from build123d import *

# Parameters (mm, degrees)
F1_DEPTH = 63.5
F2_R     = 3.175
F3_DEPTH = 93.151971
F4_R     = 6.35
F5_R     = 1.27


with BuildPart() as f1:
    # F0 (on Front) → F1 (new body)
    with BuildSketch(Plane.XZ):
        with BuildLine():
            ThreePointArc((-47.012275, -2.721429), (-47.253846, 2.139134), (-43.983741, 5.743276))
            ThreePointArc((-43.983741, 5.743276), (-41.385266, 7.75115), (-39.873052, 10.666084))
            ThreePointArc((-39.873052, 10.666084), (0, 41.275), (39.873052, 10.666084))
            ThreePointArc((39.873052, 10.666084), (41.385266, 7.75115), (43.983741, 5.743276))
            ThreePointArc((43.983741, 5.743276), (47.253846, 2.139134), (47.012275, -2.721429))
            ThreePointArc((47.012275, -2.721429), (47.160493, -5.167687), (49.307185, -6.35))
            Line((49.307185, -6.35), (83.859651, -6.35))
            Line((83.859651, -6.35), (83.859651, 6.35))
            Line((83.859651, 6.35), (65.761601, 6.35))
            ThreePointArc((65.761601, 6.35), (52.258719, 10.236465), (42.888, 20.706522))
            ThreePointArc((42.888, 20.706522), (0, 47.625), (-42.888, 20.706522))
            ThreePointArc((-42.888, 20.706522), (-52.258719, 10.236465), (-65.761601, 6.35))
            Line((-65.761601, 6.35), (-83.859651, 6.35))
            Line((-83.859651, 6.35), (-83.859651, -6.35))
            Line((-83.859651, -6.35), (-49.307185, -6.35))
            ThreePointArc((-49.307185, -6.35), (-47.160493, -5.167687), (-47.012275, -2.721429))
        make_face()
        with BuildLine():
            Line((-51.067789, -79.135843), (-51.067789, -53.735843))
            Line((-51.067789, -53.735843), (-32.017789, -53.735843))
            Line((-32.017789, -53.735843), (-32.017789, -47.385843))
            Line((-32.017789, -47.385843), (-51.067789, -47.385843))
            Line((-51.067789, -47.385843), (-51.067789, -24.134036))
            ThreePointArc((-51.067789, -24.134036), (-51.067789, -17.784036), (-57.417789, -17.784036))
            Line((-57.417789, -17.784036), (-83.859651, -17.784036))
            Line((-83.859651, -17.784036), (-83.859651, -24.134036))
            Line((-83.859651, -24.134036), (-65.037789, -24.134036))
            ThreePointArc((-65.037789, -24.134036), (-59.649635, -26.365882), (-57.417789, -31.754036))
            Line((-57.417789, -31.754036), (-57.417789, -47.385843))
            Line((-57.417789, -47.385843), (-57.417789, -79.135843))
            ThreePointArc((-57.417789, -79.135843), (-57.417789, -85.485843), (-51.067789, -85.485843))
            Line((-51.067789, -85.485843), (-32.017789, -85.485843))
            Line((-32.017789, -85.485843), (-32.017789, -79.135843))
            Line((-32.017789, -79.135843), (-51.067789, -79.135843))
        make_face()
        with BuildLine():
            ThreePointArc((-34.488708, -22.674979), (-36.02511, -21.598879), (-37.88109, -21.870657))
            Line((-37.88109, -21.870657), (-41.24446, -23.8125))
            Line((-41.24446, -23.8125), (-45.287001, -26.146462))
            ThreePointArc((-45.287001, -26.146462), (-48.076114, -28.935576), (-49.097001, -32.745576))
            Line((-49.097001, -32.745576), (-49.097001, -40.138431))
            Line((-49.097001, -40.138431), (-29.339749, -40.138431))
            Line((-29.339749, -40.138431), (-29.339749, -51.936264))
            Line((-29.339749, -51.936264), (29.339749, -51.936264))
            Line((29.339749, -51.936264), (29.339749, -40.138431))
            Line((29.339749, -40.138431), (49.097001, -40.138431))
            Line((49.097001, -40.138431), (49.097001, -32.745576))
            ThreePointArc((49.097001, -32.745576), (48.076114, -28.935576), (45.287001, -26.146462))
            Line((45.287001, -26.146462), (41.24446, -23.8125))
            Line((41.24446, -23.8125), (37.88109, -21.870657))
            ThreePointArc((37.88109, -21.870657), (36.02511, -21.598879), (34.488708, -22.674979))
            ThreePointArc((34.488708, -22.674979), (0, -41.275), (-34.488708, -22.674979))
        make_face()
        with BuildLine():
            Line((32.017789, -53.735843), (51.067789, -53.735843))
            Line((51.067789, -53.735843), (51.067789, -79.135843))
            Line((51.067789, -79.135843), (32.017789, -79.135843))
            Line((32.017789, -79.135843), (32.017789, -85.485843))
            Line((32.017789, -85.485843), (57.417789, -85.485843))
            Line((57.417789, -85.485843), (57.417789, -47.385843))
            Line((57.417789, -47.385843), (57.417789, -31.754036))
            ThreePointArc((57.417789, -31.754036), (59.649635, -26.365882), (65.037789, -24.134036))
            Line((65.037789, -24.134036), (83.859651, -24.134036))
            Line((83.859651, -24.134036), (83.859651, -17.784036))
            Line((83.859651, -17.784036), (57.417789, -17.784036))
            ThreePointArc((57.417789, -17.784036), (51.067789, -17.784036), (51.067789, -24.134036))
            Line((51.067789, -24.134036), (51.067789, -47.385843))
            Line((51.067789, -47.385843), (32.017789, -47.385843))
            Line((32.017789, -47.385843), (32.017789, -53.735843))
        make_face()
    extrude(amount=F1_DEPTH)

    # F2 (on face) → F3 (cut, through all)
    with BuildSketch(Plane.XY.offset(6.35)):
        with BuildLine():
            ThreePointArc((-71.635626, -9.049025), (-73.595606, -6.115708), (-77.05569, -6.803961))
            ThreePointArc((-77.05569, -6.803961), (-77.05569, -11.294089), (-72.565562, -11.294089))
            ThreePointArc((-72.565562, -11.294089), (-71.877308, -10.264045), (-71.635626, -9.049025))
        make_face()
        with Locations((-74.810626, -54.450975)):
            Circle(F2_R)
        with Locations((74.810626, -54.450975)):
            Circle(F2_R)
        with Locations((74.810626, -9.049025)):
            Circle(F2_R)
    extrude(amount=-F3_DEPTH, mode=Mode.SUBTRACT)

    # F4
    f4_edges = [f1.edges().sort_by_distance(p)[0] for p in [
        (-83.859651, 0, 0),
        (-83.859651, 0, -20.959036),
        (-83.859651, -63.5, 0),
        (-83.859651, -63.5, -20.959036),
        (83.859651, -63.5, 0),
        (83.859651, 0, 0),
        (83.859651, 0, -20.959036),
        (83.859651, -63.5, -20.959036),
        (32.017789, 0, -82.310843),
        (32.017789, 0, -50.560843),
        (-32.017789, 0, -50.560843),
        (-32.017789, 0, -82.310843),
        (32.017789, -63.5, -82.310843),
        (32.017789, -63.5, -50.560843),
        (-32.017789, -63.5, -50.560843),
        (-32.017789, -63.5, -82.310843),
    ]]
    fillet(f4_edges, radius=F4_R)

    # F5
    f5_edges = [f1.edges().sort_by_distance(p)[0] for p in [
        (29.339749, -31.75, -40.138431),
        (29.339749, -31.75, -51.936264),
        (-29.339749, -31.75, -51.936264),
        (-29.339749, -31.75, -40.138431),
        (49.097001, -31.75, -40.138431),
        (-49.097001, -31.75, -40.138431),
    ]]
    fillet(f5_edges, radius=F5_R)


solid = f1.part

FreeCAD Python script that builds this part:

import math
import FreeCAD as App
import Part
import Sketcher
from FreeCAD import Vector
Q = App.Units.Quantity


def edges_at(feature, points):
    """Names of the edges that pass closest to the given points."""
    edges = feature.Shape.Edges
    near = lambda p: min(range(len(edges)), key=lambda i: edges[i].distToShape(Part.Vertex(*p))[0])
    return sorted({f"Edge{near(p) + 1}" for p in points})

doc = App.newDocument("Part")
body = doc.addObject("PartDesign::Body", "Body")
body.AllowCompound = True

# Sketch on XZ plane
sketch1 = doc.addObject("Sketcher::SketchObject", "Sketch")
body.addObject(sketch1)
sketch1.AttachmentSupport = (doc.XZ_Plane, [""])
sketch1.MapMode = "FlatFace"
sketch1.addGeometry(Part.ArcOfCircle(Part.Circle(Vector(-41.3, 0, 0), Vector(0, 0, 1), 6.4), math.radians(115), math.radians(205)), False)
sketch1.addGeometry(Part.ArcOfCircle(Part.Circle(Vector(-47.2, 12.6, 0), Vector(0, 0, 1), 7.6), math.radians(-65), math.radians(-15)), False)
sketch1.addGeometry(Part.ArcOfCircle(Part.Circle(Vector(0, 0, 0), Vector(0, 0, 1), 41.3), math.radians(15), math.radians(165)), False)
sketch1.addGeometry(Part.ArcOfCircle(Part.Circle(Vector(47.2, 12.6, 0), Vector(0, 0, 1), 7.6), math.radians(-165), math.radians(-115)), False)
sketch1.addGeometry(Part.ArcOfCircle(Part.Circle(Vector(41.3, 0, 0), Vector(0, 0, 1), 6.4), math.radians(-25), math.radians(65)), False)
sketch1.addGeometry(Part.ArcOfCircle(Part.Circle(Vector(49.3, -3.8, 0), Vector(0, 0, 1), 2.5), math.radians(155), math.radians(270)), False)
sketch1.addGeometry(Part.LineSegment(Vector(49.3, -6.3, 0), Vector(83.9, -6.3, 0)), False)
sketch1.addGeometry(Part.LineSegment(Vector(83.9, -6.3, 0), Vector(83.9, 6.3, 0)), False)
sketch1.addGeometry(Part.LineSegment(Vector(83.9, 6.3, 0), Vector(65.8, 6.3, 0)), False)
sketch1.addGeometry(Part.ArcOfCircle(Part.Circle(Vector(65.8, 31.8, 0), Vector(0, 0, 1), 25.4), math.radians(-154), math.radians(-90)), False)
sketch1.addGeometry(Part.ArcOfCircle(Part.Circle(Vector(0, 0, 0), Vector(0, 0, 1), 47.6), math.radians(26), math.radians(154)), False)
sketch1.addGeometry(Part.ArcOfCircle(Part.Circle(Vector(-65.8, 31.8, 0), Vector(0, 0, 1), 25.4), math.radians(-90), math.radians(-26)), False)
sketch1.addGeometry(Part.LineSegment(Vector(-65.8, 6.3, 0), Vector(-83.9, 6.3, 0)), False)
sketch1.addGeometry(Part.LineSegment(Vector(-83.9, 6.3, 0), Vector(-83.9, -6.3, 0)), False)
sketch1.addGeometry(Part.LineSegment(Vector(-83.9, -6.3, 0), Vector(-49.3, -6.3, 0)), False)
sketch1.addGeometry(Part.ArcOfCircle(Part.Circle(Vector(-49.3, -3.8, 0), Vector(0, 0, 1), 2.5), math.radians(-90), math.radians(25)), False)
sketch1.addGeometry(Part.LineSegment(Vector(-51.1, -79.1, 0), Vector(-51.1, -53.7, 0)), False)
sketch1.addGeometry(Part.LineSegment(Vector(-51.1, -53.7, 0), Vector(-32, -53.7, 0)), False)
sketch1.addGeometry(Part.LineSegment(Vector(-32, -53.7, 0), Vector(-32, -47.4, 0)), False)
sketch1.addGeometry(Part.LineSegment(Vector(-32, -47.4, 0), Vector(-51.1, -47.4, 0)), False)
sketch1.addGeometry(Part.LineSegment(Vector(-51.1, -47.4, 0), Vector(-51.1, -24.1, 0)), False)
sketch1.addGeometry(Part.ArcOfCircle(Part.Circle(Vector(-54.2, -21, 0), Vector(0, 0, 1), 4.5), math.radians(-45), math.radians(135)), False)
sketch1.addGeometry(Part.LineSegment(Vector(-57.4, -17.8, 0), Vector(-83.9, -17.8, 0)), False)
sketch1.addGeometry(Part.LineSegment(Vector(-83.9, -17.8, 0), Vector(-83.9, -24.1, 0)), False)
sketch1.addGeometry(Part.LineSegment(Vector(-83.9, -24.1, 0), Vector(-65, -24.1, 0)), False)
sketch1.addGeometry(Part.ArcOfCircle(Part.Circle(Vector(-65, -31.8, 0), Vector(0, 0, 1), 7.6), math.radians(0), math.radians(90)), False)
sketch1.addGeometry(Part.LineSegment(Vector(-57.4, -31.8, 0), Vector(-57.4, -79.1, 0)), False)
sketch1.addGeometry(Part.ArcOfCircle(Part.Circle(Vector(-54.2, -82.3, 0), Vector(0, 0, 1), 4.5), math.radians(135), math.radians(315)), False)
sketch1.addGeometry(Part.LineSegment(Vector(-51.1, -85.5, 0), Vector(-32, -85.5, 0)), False)
sketch1.addGeometry(Part.LineSegment(Vector(-32, -85.5, 0), Vector(-32, -79.1, 0)), False)
sketch1.addGeometry(Part.LineSegment(Vector(-32, -79.1, 0), Vector(-51.1, -79.1, 0)), False)
sketch1.addGeometry(Part.ArcOfCircle(Part.Circle(Vector(-36.6, -24.1, 0), Vector(0, 0, 1), 2.5), math.radians(33), math.radians(120)), False)
sketch1.addGeometry(Part.LineSegment(Vector(-37.9, -21.9, 0), Vector(-41.2, -23.8, 0)), False)
sketch1.addGeometry(Part.LineSegment(Vector(-41.2, -23.8, 0), Vector(-45.3, -26.1, 0)), False)
sketch1.addGeometry(Part.ArcOfCircle(Part.Circle(Vector(-41.5, -32.7, 0), Vector(0, 0, 1), 7.6), math.radians(120), math.radians(180)), False)
sketch1.addGeometry(Part.LineSegment(Vector(-49.1, -32.7, 0), Vector(-49.1, -40.1, 0)), False)
sketch1.addGeometry(Part.LineSegment(Vector(-49.1, -40.1, 0), Vector(-29.3, -40.1, 0)), False)
sketch1.addGeometry(Part.LineSegment(Vector(-29.3, -40.1, 0), Vector(-29.3, -51.9, 0)), False)
sketch1.addGeometry(Part.LineSegment(Vector(-29.3, -51.9, 0), Vector(29.3, -51.9, 0)), False)
sketch1.addGeometry(Part.LineSegment(Vector(29.3, -51.9, 0), Vector(29.3, -40.1, 0)), False)
sketch1.addGeometry(Part.LineSegment(Vector(29.3, -40.1, 0), Vector(49.1, -40.1, 0)), False)
sketch1.addGeometry(Part.LineSegment(Vector(49.1, -40.1, 0), Vector(49.1, -32.7, 0)), False)
sketch1.addGeometry(Part.ArcOfCircle(Part.Circle(Vector(41.5, -32.7, 0), Vector(0, 0, 1), 7.6), math.radians(0), math.radians(60)), False)
sketch1.addGeometry(Part.LineSegment(Vector(45.3, -26.1, 0), Vector(41.2, -23.8, 0)), False)
sketch1.addGeometry(Part.LineSegment(Vector(41.2, -23.8, 0), Vector(37.9, -21.9, 0)), False)
sketch1.addGeometry(Part.ArcOfCircle(Part.Circle(Vector(36.6, -24.1, 0), Vector(0, 0, 1), 2.5), math.radians(60), math.radians(147)), False)
sketch1.addGeometry(Part.ArcOfCircle(Part.Circle(Vector(0, 0, 0), Vector(0, 0, 1), 41.3), math.radians(-147), math.radians(-33)), False)
sketch1.addGeometry(Part.LineSegment(Vector(32, -53.7, 0), Vector(51.1, -53.7, 0)), False)
sketch1.addGeometry(Part.LineSegment(Vector(51.1, -53.7, 0), Vector(51.1, -79.1, 0)), False)
sketch1.addGeometry(Part.LineSegment(Vector(51.1, -79.1, 0), Vector(32, -79.1, 0)), False)
sketch1.addGeometry(Part.LineSegment(Vector(32, -79.1, 0), Vector(32, -85.5, 0)), False)
sketch1.addGeometry(Part.LineSegment(Vector(32, -85.5, 0), Vector(57.4, -85.5, 0)), False)
sketch1.addGeometry(Part.LineSegment(Vector(57.4, -85.5, 0), Vector(57.4, -31.8, 0)), False)
sketch1.addGeometry(Part.ArcOfCircle(Part.Circle(Vector(65, -31.8, 0), Vector(0, 0, 1), 7.6), math.radians(90), math.radians(180)), False)
sketch1.addGeometry(Part.LineSegment(Vector(65, -24.1, 0), Vector(83.9, -24.1, 0)), False)
sketch1.addGeometry(Part.LineSegment(Vector(83.9, -24.1, 0), Vector(83.9, -17.8, 0)), False)
sketch1.addGeometry(Part.LineSegment(Vector(83.9, -17.8, 0), Vector(57.4, -17.8, 0)), False)
sketch1.addGeometry(Part.ArcOfCircle(Part.Circle(Vector(54.2, -21, 0), Vector(0, 0, 1), 4.5), math.radians(45), math.radians(225)), False)
sketch1.addGeometry(Part.LineSegment(Vector(51.1, -24.1, 0), Vector(51.1, -47.4, 0)), False)
sketch1.addGeometry(Part.LineSegment(Vector(51.1, -47.4, 0), Vector(32, -47.4, 0)), False)
sketch1.addGeometry(Part.LineSegment(Vector(32, -47.4, 0), Vector(32, -53.7, 0)), False)
sketch1.addConstraint(Sketcher.Constraint("Tangent", 0, 1, 1, 1))
sketch1.addConstraint(Sketcher.Constraint("Tangent", 1, 2, 2, 2))
sketch1.addConstraint(Sketcher.Constraint("Tangent", 2, 1, 3, 1))
sketch1.addConstraint(Sketcher.Constraint("Tangent", 3, 2, 4, 2))
sketch1.addConstraint(Sketcher.Constraint("Tangent", 4, 1, 5, 1))
sketch1.addConstraint(Sketcher.Constraint("Tangent", 5, 2, 6, 1))
sketch1.addConstraint(Sketcher.Constraint("Coincident", 6, 2, 7, 1))
sketch1.addConstraint(Sketcher.Constraint("Coincident", 7, 2, 8, 1))
sketch1.addConstraint(Sketcher.Constraint("Tangent", 8, 2, 9, 2))
sketch1.addConstraint(Sketcher.Constraint("Tangent", 9, 1, 10, 1))
sketch1.addConstraint(Sketcher.Constraint("Tangent", 10, 2, 11, 2))
sketch1.addConstraint(Sketcher.Constraint("Tangent", 11, 1, 12, 1))
sketch1.addConstraint(Sketcher.Constraint("Coincident", 12, 2, 13, 1))
sketch1.addConstraint(Sketcher.Constraint("Coincident", 13, 2, 14, 1))
sketch1.addConstraint(Sketcher.Constraint("Tangent", 14, 2, 15, 1))
sketch1.addConstraint(Sketcher.Constraint("Tangent", 15, 2, 0, 2))
sketch1.addConstraint(Sketcher.Constraint("Coincident", 16, 2, 17, 1))
sketch1.addConstraint(Sketcher.Constraint("Coincident", 17, 2, 18, 1))
sketch1.addConstraint(Sketcher.Constraint("Coincident", 18, 2, 19, 1))
sketch1.addConstraint(Sketcher.Constraint("Coincident", 19, 2, 20, 1))
sketch1.addConstraint(Sketcher.Constraint("Coincident", 20, 2, 21, 1))
sketch1.addConstraint(Sketcher.Constraint("Coincident", 21, 2, 22, 1))
sketch1.addConstraint(Sketcher.Constraint("Coincident", 22, 2, 23, 1))
sketch1.addConstraint(Sketcher.Constraint("Coincident", 23, 2, 24, 1))
sketch1.addConstraint(Sketcher.Constraint("Tangent", 24, 2, 25, 2))
sketch1.addConstraint(Sketcher.Constraint("Tangent", 25, 1, 26, 1))
sketch1.addConstraint(Sketcher.Constraint("Coincident", 26, 2, 27, 1))
sketch1.addConstraint(Sketcher.Constraint("Coincident", 27, 2, 28, 1))
sketch1.addConstraint(Sketcher.Constraint("Coincident", 28, 2, 29, 1))
sketch1.addConstraint(Sketcher.Constraint("Coincident", 29, 2, 30, 1))
sketch1.addConstraint(Sketcher.Constraint("Coincident", 30, 2, 16, 1))
sketch1.addConstraint(Sketcher.Constraint("Tangent", 31, 2, 32, 1))
sketch1.addConstraint(Sketcher.Constraint("Coincident", 32, 2, 33, 1))
sketch1.addConstraint(Sketcher.Constraint("Tangent", 33, 2, 34, 1))
sketch1.addConstraint(Sketcher.Constraint("Tangent", 34, 2, 35, 1))
sketch1.addConstraint(Sketcher.Constraint("Coincident", 35, 2, 36, 1))
sketch1.addConstraint(Sketcher.Constraint("Coincident", 36, 2, 37, 1))
sketch1.addConstraint(Sketcher.Constraint("Coincident", 37, 2, 38, 1))
sketch1.addConstraint(Sketcher.Constraint("Coincident", 38, 2, 39, 1))
sketch1.addConstraint(Sketcher.Constraint("Coincident", 39, 2, 40, 1))
sketch1.addConstraint(Sketcher.Constraint("Coincident", 40, 2, 41, 1))
sketch1.addConstraint(Sketcher.Constraint("Tangent", 41, 2, 42, 1))
sketch1.addConstraint(Sketcher.Constraint("Tangent", 42, 2, 43, 1))
sketch1.addConstraint(Sketcher.Constraint("Coincident", 43, 2, 44, 1))
sketch1.addConstraint(Sketcher.Constraint("Tangent", 44, 2, 45, 1))
sketch1.addConstraint(Sketcher.Constraint("Tangent", 45, 2, 46, 2))
sketch1.addConstraint(Sketcher.Constraint("Tangent", 46, 1, 31, 1))
sketch1.addConstraint(Sketcher.Constraint("Coincident", 47, 2, 48, 1))
sketch1.addConstraint(Sketcher.Constraint("Coincident", 48, 2, 49, 1))
sketch1.addConstraint(Sketcher.Constraint("Coincident", 49, 2, 50, 1))
sketch1.addConstraint(Sketcher.Constraint("Coincident", 50, 2, 51, 1))
sketch1.addConstraint(Sketcher.Constraint("Coincident", 51, 2, 52, 1))
sketch1.addConstraint(Sketcher.Constraint("Tangent", 52, 2, 53, 2))
sketch1.addConstraint(Sketcher.Constraint("Tangent", 53, 1, 54, 1))
sketch1.addConstraint(Sketcher.Constraint("Coincident", 54, 2, 55, 1))
sketch1.addConstraint(Sketcher.Constraint("Coincident", 55, 2, 56, 1))
sketch1.addConstraint(Sketcher.Constraint("Coincident", 56, 2, 57, 1))
sketch1.addConstraint(Sketcher.Constraint("Coincident", 57, 2, 58, 1))
sketch1.addConstraint(Sketcher.Constraint("Coincident", 58, 2, 59, 1))
sketch1.addConstraint(Sketcher.Constraint("Coincident", 59, 2, 60, 1))
sketch1.addConstraint(Sketcher.Constraint("Coincident", 60, 2, 47, 1))
sketch1.addConstraint(Sketcher.Constraint("Horizontal", 6))
sketch1.addConstraint(Sketcher.Constraint("Vertical", 7))
sketch1.addConstraint(Sketcher.Constraint("Horizontal", 8))
sketch1.addConstraint(Sketcher.Constraint("Horizontal", 12))
sketch1.addConstraint(Sketcher.Constraint("Vertical", 13))
sketch1.addConstraint(Sketcher.Constraint("Horizontal", 14))
sketch1.addConstraint(Sketcher.Constraint("Vertical", 16))
sketch1.addConstraint(Sketcher.Constraint("Horizontal", 17))
sketch1.addConstraint(Sketcher.Constraint("Vertical", 18))
sketch1.addConstraint(Sketcher.Constraint("Horizontal", 19))
sketch1.addConstraint(Sketcher.Constraint("Vertical", 20))
sketch1.addConstraint(Sketcher.Constraint("Horizontal", 22))
sketch1.addConstraint(Sketcher.Constraint("Vertical", 23))
sketch1.addConstraint(Sketcher.Constraint("Horizontal", 24))
sketch1.addConstraint(Sketcher.Constraint("Vertical", 26))
sketch1.addConstraint(Sketcher.Constraint("Horizontal", 28))
sketch1.addConstraint(Sketcher.Constraint("Vertical", 29))
sketch1.addConstraint(Sketcher.Constraint("Horizontal", 30))
sketch1.addConstraint(Sketcher.Constraint("Vertical", 35))
sketch1.addConstraint(Sketcher.Constraint("Horizontal", 36))
sketch1.addConstraint(Sketcher.Constraint("Vertical", 37))
sketch1.addConstraint(Sketcher.Constraint("Horizontal", 38))
sketch1.addConstraint(Sketcher.Constraint("Vertical", 39))
sketch1.addConstraint(Sketcher.Constraint("Horizontal", 40))
sketch1.addConstraint(Sketcher.Constraint("Vertical", 41))
sketch1.addConstraint(Sketcher.Constraint("Horizontal", 47))
sketch1.addConstraint(Sketcher.Constraint("Vertical", 48))
sketch1.addConstraint(Sketcher.Constraint("Horizontal", 49))
sketch1.addConstraint(Sketcher.Constraint("Vertical", 50))
sketch1.addConstraint(Sketcher.Constraint("Horizontal", 51))
sketch1.addConstraint(Sketcher.Constraint("Vertical", 52))
sketch1.addConstraint(Sketcher.Constraint("Horizontal", 54))
sketch1.addConstraint(Sketcher.Constraint("Vertical", 55))
sketch1.addConstraint(Sketcher.Constraint("Horizontal", 56))
sketch1.addConstraint(Sketcher.Constraint("Vertical", 58))
sketch1.addConstraint(Sketcher.Constraint("Horizontal", 59))
sketch1.addConstraint(Sketcher.Constraint("Vertical", 60))
sketch1.addConstraint(Sketcher.Constraint("Coincident", 2, 3, -1, 1))
sketch1.addConstraint(Sketcher.Constraint("Coincident", 10, 3, -1, 1))
sketch1.addConstraint(Sketcher.Constraint("Coincident", 46, 3, -1, 1))
sketch1.addConstraint(Sketcher.Constraint("Equal", 1, 3))
sketch1.addConstraint(Sketcher.Constraint("Equal", 0, 4))
sketch1.addConstraint(Sketcher.Constraint("Equal", 9, 11))
sketch1.addConstraint(Sketcher.Constraint("Equal", 5, 15))
sketch1.addConstraint(Sketcher.Constraint("Equal", 3, 25))
sketch1.addConstraint(Sketcher.Constraint("Equal", 21, 27))
sketch1.addConstraint(Sketcher.Constraint("Equal", 15, 31))
sketch1.addConstraint(Sketcher.Constraint("Equal", 34, 42))
sketch1.addConstraint(Sketcher.Constraint("Equal", 31, 45))
sketch1.addConstraint(Sketcher.Constraint("Equal", 2, 46))
sketch1.addConstraint(Sketcher.Constraint("Equal", 25, 53))
sketch1.addConstraint(Sketcher.Constraint("Equal", 27, 57))
sketch1.addConstraint(Sketcher.Constraint("Symmetric", 0, 3, 4, 3, -1, 1))
sketch1.addConstraint(Sketcher.Constraint("Symmetric", 6, 2, 12, 2, -1, 1))
sketch1.addConstraint(Sketcher.Constraint("Symmetric", 5, 3, 15, 3, -2))
sketch1.addConstraint(Sketcher.Constraint("Symmetric", 34, 3, 42, 3, -2))
sketch1.addConstraint(Sketcher.Constraint("Symmetric", 25, 3, 53, 3, -2))
sketch1.addConstraint(Sketcher.Constraint("Symmetric", 21, 3, 57, 3, -2))
sketch1.addConstraint(Sketcher.Constraint("Symmetric", 36, 2, 39, 2, -2))
sketch1.addConstraint(Sketcher.Constraint("Symmetric", 32, 2, 43, 2, -2))
sketch1.addConstraint(Sketcher.Constraint("Symmetric", 16, 2, 47, 2, -2))
sketch1.addConstraint(Sketcher.Constraint("Symmetric", 29, 2, 49, 2, -2))
sketch1.addConstraint(Sketcher.Constraint("Symmetric", 22, 2, 55, 2, -2))
sketch1.addConstraint(Sketcher.Constraint("Symmetric", 19, 2, 58, 2, -2))
sketch1.addConstraint(Sketcher.Constraint("Parallel", 32, 33))
sketch1.addConstraint(Sketcher.Constraint("Parallel", 43, 44))
sketch1.addConstraint(Sketcher.Constraint("Horizontal", 9, 3, 11, 3))
sketch1.addConstraint(Sketcher.Constraint("Horizontal", 20, 2, 23, 2))
sketch1.addConstraint(Sketcher.Constraint("Horizontal", 26, 2, 29, 2))
sketch1.addConstraint(Sketcher.Constraint("Horizontal", 28, 2, 50, 2))
sketch1.addConstraint(Sketcher.Constraint("Vertical", 21, 3, 27, 3))
sketch1.addConstraint(Sketcher.Constraint("Vertical", 16, 2, 19, 2))
sketch1.addConstraint(Sketcher.Constraint("Vertical", 13, 2, 22, 2))
sketch1.addConstraint(Sketcher.Constraint("Vertical", 21, 2, 25, 1))
sketch1.addConstraint(Sketcher.Constraint("Vertical", 20, 2, 27, 2))
sketch1.addConstraint(Sketcher.Constraint("Vertical", 18, 2, 28, 2))
sketch1.addConstraint(Sketcher.Constraint("Vertical", 50, 2, 59, 2))
sketch1.addConstraint(Sketcher.Constraint("Equal", 51, 16))
sketch1.addConstraint(Sketcher.Constraint("Equal", 18, 23))
sketch1.addConstraint(Sketcher.Constraint("Radius", 9, Q("1 in")))
sketch1.addConstraint(Sketcher.Constraint("Radius", 1, Q("0.2999999 in")))
sketch1.addConstraint(Sketcher.Constraint("Radius", 5, Q("0.1 in")))
sketch1.addConstraint(Sketcher.Constraint("Radius", 34, Q("0.3000002 in")))
sketch1.addConstraint(Sketcher.Constraint("DistanceX", 51, 1, 51, 2, Q("1 in")))
sketch1.addConstraint(Sketcher.Constraint("Radius", 0, Q("0.25 in")))
sketch1.addConstraint(Sketcher.Constraint("DistanceY", 7, 1, 7, 2, Q("0.5 in")))
sketch1.addConstraint(Sketcher.Constraint("Angle", 32, Q("-149.999995 deg")))
sketch1.addConstraint(Sketcher.Constraint("Radius", 2, Q("1.625 in")))
sketch1.addConstraint(Sketcher.Constraint("Radius", 10, Q("1.875 in")))
sketch1.addConstraint(Sketcher.Constraint("DistanceX", 17, 1, 17, 2, Q("0.75 in")))
sketch1.addConstraint(Sketcher.Constraint("DistanceY", 18, 1, 18, 2, Q("0.25 in")))
sketch1.addConstraint(Sketcher.Constraint("DistanceX", 0, 3, -1, 1, Q("1.625 in")))
sketch1.addConstraint(Sketcher.Constraint("DistanceY", 32, 2, -1, 1, Q("0.9375 in")))
sketch1.addConstraint(Sketcher.Constraint("DistanceX", 38, 1, 38, 2, 58.679498))
sketch1.addConstraint(Sketcher.Constraint("DistanceX", 8, 2, 8, 1, 18.09805))
sketch1.addConstraint(Sketcher.Constraint("DistanceX", 24, 1, 24, 2, 18.821862))
sketch1.addConstraint(Sketcher.Constraint("DistanceX", 36, 1, 36, 2, 19.757252))
sketch1.addConstraint(Sketcher.Constraint("DistanceY", 20, 1, 20, 2, 23.251807))
sketch1.addConstraint(Sketcher.Constraint("DistanceY", 35, 2, 35, 1, 7.392855))
sketch1.addConstraint(Sketcher.Constraint("DistanceY", 37, 2, 37, 1, 11.797833))
sketch1.addConstraint(Sketcher.Constraint("DistanceX", 21, 3, -1, 1, 54.242789))
sketch1.addConstraint(Sketcher.Constraint("DistanceX", 31, 3, -1, 1, 36.61109))
sketch1.addConstraint(Sketcher.Constraint("DistanceY", 21, 3, -1, 1, 20.959036))
pad1 = doc.addObject("PartDesign::Pad", "Pad")
body.addObject(pad1)
pad1.Profile = sketch1
pad1.Length = Q("2.5 in")

# Sketch on XY plane
sketch2 = doc.addObject("Sketcher::SketchObject", "Sketch001")
body.addObject(sketch2)
sketch2.AttachmentSupport = (doc.XY_Plane, [""])
sketch2.MapMode = "FlatFace"
sketch2.AttachmentOffset = App.Placement(Vector(0, 0, 0.25 * 25.4), App.Rotation())
sketch2.addGeometry(Part.ArcOfCircle(Part.Circle(Vector(-74.8, -9, 0), Vector(0, 0, 1), 3.2), math.radians(0), math.radians(135)), False)
sketch2.addGeometry(Part.ArcOfCircle(Part.Circle(Vector(-74.8, -9, 0), Vector(0, 0, 1), 3.2), math.radians(135), math.radians(315)), False)
sketch2.addGeometry(Part.ArcOfCircle(Part.Circle(Vector(-74.8, -9, 0), Vector(0, 0, 1), 3.2), math.radians(-45), math.radians(0)), False)
sketch2.addGeometry(Part.Circle(Vector(-74.8, -54.5, 0), Vector(0, 0, 1), 3.2), False)
sketch2.addGeometry(Part.Circle(Vector(74.8, -54.5, 0), Vector(0, 0, 1), 3.2), False)
sketch2.addGeometry(Part.Circle(Vector(74.8, -9, 0), Vector(0, 0, 1), 3.2), False)
sketch2.addConstraint(Sketcher.Constraint("Tangent", 0, 2, 1, 1))
sketch2.addConstraint(Sketcher.Constraint("Tangent", 1, 2, 2, 1))
sketch2.addConstraint(Sketcher.Constraint("Tangent", 2, 2, 0, 1))
sketch2.addConstraint(Sketcher.Constraint("Equal", 1, 3))
sketch2.addConstraint(Sketcher.Constraint("Equal", 3, 4))
sketch2.addConstraint(Sketcher.Constraint("Equal", 4, 5))
sketch2.addConstraint(Sketcher.Constraint("Symmetric", 3, 3, 4, 3, -2))
sketch2.addConstraint(Sketcher.Constraint("Symmetric", 0, 3, 5, 3, -2))
sketch2.addConstraint(Sketcher.Constraint("Horizontal", 5, 3, 2, 2))
sketch2.addConstraint(Sketcher.Constraint("Vertical", 1, 3, 3, 3))
sketch2.addConstraint(Sketcher.Constraint("Diameter", 3, Q("0.25 in")))
sketch2.addConstraint(Sketcher.Constraint("DistanceX", 2, 3, -1, 1, Q("2.9453 in")))
sketch2.addConstraint(Sketcher.Constraint("DistanceX", 0, 2, -1, 1, 77.05569))
sketch2.addConstraint(Sketcher.Constraint("DistanceY", 0, 2, -1, 1, 6.803961))
sketch2.addConstraint(Sketcher.Constraint("DistanceY", 1, 2, -1, 1, 11.294089))
sketch2.addConstraint(Sketcher.Constraint("DistanceY", 3, 3, 0, 3, 45.401949))
pocket1 = doc.addObject("PartDesign::Pocket", "Pocket")
body.addObject(pocket1)
pocket1.Profile = sketch2
pocket1.Type = "ThroughAll"
doc.recompute()

fillet = doc.addObject("PartDesign::Fillet", "Fillet")
body.addObject(fillet)
fillet.Base = (pocket1, edges_at(pocket1, [
    (-83.86, 0, 0),
    (-83.86, 0, -20.959),
    (-83.86, -63.5, 0),
    (-83.86, -63.5, -20.959),
    (83.86, -63.5, 0),
    (83.86, 0, 0),
    (83.86, 0, -20.959),
    (83.86, -63.5, -20.959),
    (32.018, 0, -82.311),
    (32.018, 0, -50.561),
    (-32.018, 0, -50.561),
    (-32.018, 0, -82.311),
    (32.018, -63.5, -82.311),
    (32.018, -63.5, -50.561),
    (-32.018, -63.5, -50.561),
    (-32.018, -63.5, -82.311),
]))
fillet.Radius = Q("0.25 in")
doc.recompute()

fillet2 = doc.addObject("PartDesign::Fillet", "Fillet001")
body.addObject(fillet2)
fillet2.Base = (fillet, edges_at(fillet, [
    (29.34, -31.75, -40.138),
    (29.34, -31.75, -51.936),
    (-29.34, -31.75, -51.936),
    (-29.34, -31.75, -40.138),
    (49.097, -31.75, -40.138),
    (-49.097, -31.75, -40.138),
]))
fillet2.Radius = Q("0.05 in")

doc.recompute()
